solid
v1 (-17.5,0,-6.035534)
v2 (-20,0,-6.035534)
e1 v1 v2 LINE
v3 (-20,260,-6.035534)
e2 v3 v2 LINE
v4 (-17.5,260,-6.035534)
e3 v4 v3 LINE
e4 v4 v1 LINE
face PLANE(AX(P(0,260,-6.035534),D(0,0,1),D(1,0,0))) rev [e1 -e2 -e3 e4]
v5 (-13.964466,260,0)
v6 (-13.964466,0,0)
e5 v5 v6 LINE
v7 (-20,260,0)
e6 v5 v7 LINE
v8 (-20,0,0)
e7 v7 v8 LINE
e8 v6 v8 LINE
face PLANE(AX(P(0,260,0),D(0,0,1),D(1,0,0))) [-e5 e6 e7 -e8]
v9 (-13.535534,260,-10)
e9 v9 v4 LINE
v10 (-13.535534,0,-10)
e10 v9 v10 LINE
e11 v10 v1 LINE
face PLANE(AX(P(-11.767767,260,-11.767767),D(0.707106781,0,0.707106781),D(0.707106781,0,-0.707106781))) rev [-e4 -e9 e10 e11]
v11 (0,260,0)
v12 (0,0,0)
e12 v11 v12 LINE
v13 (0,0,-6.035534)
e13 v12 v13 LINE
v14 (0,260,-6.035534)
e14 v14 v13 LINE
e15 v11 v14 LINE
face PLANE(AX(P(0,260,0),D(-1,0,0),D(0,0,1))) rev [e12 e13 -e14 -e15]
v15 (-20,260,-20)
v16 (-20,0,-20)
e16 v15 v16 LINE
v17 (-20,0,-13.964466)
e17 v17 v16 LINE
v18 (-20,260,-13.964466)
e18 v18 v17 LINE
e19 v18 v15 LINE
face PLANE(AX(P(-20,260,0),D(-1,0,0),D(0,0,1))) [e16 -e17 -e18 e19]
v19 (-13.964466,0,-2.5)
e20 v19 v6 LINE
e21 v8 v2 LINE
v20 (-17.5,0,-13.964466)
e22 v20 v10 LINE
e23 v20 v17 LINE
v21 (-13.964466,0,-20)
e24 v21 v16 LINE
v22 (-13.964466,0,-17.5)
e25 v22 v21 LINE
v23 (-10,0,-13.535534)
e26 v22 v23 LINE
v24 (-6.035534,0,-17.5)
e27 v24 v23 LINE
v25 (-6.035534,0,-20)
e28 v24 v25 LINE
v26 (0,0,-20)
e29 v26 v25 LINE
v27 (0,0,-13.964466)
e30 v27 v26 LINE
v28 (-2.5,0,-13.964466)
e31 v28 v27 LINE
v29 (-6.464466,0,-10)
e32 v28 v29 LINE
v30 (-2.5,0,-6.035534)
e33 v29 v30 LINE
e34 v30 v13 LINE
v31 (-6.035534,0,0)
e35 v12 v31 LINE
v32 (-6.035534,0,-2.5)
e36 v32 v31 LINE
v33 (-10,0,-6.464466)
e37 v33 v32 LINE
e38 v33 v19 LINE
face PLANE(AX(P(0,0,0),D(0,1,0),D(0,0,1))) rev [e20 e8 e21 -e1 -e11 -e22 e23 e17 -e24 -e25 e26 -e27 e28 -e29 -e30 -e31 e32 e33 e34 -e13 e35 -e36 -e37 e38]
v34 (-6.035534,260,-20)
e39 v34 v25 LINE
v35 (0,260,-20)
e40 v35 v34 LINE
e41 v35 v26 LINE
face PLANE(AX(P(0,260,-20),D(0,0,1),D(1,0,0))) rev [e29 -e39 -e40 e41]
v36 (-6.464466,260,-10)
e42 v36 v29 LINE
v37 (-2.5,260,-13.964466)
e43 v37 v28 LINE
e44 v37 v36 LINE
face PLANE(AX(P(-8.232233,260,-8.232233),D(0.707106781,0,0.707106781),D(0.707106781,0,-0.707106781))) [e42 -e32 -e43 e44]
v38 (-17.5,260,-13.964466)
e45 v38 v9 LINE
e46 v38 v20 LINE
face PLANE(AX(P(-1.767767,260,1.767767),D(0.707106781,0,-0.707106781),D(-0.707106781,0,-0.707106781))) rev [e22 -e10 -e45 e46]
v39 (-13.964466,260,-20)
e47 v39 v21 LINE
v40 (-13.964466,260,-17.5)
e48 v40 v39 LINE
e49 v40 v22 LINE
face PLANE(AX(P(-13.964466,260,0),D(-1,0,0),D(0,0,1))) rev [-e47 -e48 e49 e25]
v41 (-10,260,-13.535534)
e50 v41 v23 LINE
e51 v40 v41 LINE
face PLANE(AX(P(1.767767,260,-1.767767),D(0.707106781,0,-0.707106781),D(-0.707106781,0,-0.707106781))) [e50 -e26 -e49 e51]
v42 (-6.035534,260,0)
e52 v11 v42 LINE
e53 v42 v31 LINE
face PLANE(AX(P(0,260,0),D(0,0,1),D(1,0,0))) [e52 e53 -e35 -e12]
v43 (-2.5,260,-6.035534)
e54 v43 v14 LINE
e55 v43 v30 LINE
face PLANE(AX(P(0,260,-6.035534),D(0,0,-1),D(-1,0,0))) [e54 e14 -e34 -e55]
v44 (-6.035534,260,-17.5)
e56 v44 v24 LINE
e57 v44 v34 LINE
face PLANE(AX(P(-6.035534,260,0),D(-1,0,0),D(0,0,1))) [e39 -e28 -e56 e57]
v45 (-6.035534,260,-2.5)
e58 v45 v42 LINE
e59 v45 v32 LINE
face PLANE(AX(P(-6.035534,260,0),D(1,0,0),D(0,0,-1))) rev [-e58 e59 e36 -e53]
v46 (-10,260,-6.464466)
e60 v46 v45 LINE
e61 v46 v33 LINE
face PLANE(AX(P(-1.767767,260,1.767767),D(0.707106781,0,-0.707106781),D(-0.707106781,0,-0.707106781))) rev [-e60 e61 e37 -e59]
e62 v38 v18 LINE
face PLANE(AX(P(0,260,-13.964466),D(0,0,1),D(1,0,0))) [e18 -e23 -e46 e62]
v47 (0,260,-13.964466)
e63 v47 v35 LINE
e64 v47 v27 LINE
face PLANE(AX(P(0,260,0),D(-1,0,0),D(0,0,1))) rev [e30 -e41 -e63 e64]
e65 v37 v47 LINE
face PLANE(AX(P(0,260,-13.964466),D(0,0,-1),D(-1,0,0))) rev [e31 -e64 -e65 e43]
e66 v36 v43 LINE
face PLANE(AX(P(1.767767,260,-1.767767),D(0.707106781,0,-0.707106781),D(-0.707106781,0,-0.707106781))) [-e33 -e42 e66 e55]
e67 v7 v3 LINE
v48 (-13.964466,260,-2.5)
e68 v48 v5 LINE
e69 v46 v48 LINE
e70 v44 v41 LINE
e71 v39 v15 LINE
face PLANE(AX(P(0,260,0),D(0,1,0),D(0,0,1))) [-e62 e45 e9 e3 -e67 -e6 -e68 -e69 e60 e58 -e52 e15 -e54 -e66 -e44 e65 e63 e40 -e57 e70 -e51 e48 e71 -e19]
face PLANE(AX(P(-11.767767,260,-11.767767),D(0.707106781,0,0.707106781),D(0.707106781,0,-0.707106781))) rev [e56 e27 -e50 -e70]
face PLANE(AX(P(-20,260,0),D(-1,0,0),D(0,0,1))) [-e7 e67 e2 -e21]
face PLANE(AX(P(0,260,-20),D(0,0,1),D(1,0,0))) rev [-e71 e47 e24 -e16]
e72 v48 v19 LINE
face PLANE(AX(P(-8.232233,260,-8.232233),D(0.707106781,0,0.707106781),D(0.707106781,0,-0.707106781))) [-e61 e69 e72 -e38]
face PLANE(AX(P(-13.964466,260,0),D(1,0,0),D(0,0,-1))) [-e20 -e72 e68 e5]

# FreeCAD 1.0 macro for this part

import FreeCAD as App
import Part
import Sketcher

V = App.Vector


def add_polygon(sketch, points):
    """Adds a closed chain of lines whose ends are joined by coincident constraints."""
    first, n = sketch.GeometryCount, len(points)
    for a, b in zip(points, points[1:] + points[:1]):
        sketch.addGeometry(Part.LineSegment(App.Vector(*a, 0), App.Vector(*b, 0)), False)
    for i in range(n):
        sketch.addConstraint(Sketcher.Constraint("Coincident", first + i, 2, first + (i + 1) % n, 1))

doc = App.newDocument("Part")
body = doc.addObject("PartDesign::Body", "Body")

sketch1 = body.newObject("Sketcher::SketchObject", "Sketch")
sketch1.AttachmentSupport = (doc.getObject("XZ_Plane"), [""])
sketch1.MapMode = "FlatFace"
add_polygon(sketch1, [(-6.035534, -2.5), (-6.035534, 0), (0, 0), (0, -6.035534), (-2.5, -6.035534), (-6.464466, -10), (-2.5, -13.964466), (0, -13.964466), (0, -20), (-6.035534, -20), (-6.035534, -17.5), (-10, -13.535534), (-13.964466, -17.5), (-13.964466, -20), (-20, -20), (-20, -13.964466), (-17.5, -13.964466), (-13.535534, -10), (-17.5, -6.035534), (-20, -6.035534), (-20, 0), (-13.964466, 0), (-13.964466, -2.5), (-10, -6.464466)])
sketch1.addConstraint([
    Sketcher.Constraint("Vertical", 0),
    Sketcher.Constraint("Horizontal", 1),
    Sketcher.Constraint("Vertical", 2),
    Sketcher.Constraint("Horizontal", 3),
    Sketcher.Constraint("Horizontal", 6),
    Sketcher.Constraint("Vertical", 7),
    Sketcher.Constraint("Horizontal", 8),
    Sketcher.Constraint("Vertical", 9),
    Sketcher.Constraint("Vertical", 12),
    Sketcher.Constraint("Horizontal", 13),
    Sketcher.Constraint("Vertical", 14),
    Sketcher.Constraint("Horizontal", 15),
    Sketcher.Constraint("Horizontal", 18),
    Sketcher.Constraint("Vertical", 19),
    Sketcher.Constraint("Horizontal", 20),
    Sketcher.Constraint("Vertical", 21),
    Sketcher.Constraint("Coincident", 1, 2, -1, 1),
    Sketcher.Constraint("PointOnObject", 6, 2, -2),
    Sketcher.Constraint("PointOnObject", 19, 2, -1),
    Sketcher.Constraint("Perpendicular", 4, 5),
    Sketcher.Constraint("Parallel", 5, 10),
    Sketcher.Constraint("Perpendicular", 10, 11),
    Sketcher.Constraint("Parallel", 11, 16),
    Sketcher.Constraint("Perpendicular", 16, 17),
    Sketcher.Constraint("Parallel", 17, 22),
    Sketcher.Constraint("Perpendicular", 22, 23),
    Sketcher.Constraint("Horizontal", 9, 2, 11, 2),
    Sketcher.Constraint("Horizontal", 8, 2, 12, 2),
    Sketcher.Constraint("Horizontal", 6, 2, 14, 2),
    Sketcher.Constraint("Horizontal", 4, 2, 16, 2),
    Sketcher.Constraint("Horizontal", 3, 2, 17, 2),
    Sketcher.Constraint("Horizontal", 21, 2, 23, 2),
    Sketcher.Constraint("Vertical", 3, 2, 5, 2),
    Sketcher.Constraint("Vertical", 0, 2, 8, 2),
    Sketcher.Constraint("Vertical", 15, 2, 17, 2),
    Sketcher.Constraint("Vertical", 14, 2, 18, 2),
    Sketcher.Constraint("Vertical", 12, 2, 20, 2),
    Sketcher.Constraint("Equal", 8, 13),
    Sketcher.Constraint("Equal", 6, 15),
    Sketcher.Constraint("Equal", 18, 0),
    Sketcher.Constraint("Equal", 20, 2),
    Sketcher.Constraint("Equal", 2, 7),
    Sketcher.Constraint("Equal", 0, 9),
    Sketcher.Constraint("Equal", 5, 10),
    Sketcher.Constraint("DistanceX", 3, 2, 3, 1, 2.5),
    Sketcher.Constraint("DistanceY", 4, 2, -1, 1, 10.0),
    Sketcher.Constraint("Distance", 4, 5.606602),
])
pad1 = body.newObject("PartDesign::Pad", "Pad")
pad1.Profile = sketch1
pad1.Length = 260
pad1.Reversed = True

doc.recompute()
